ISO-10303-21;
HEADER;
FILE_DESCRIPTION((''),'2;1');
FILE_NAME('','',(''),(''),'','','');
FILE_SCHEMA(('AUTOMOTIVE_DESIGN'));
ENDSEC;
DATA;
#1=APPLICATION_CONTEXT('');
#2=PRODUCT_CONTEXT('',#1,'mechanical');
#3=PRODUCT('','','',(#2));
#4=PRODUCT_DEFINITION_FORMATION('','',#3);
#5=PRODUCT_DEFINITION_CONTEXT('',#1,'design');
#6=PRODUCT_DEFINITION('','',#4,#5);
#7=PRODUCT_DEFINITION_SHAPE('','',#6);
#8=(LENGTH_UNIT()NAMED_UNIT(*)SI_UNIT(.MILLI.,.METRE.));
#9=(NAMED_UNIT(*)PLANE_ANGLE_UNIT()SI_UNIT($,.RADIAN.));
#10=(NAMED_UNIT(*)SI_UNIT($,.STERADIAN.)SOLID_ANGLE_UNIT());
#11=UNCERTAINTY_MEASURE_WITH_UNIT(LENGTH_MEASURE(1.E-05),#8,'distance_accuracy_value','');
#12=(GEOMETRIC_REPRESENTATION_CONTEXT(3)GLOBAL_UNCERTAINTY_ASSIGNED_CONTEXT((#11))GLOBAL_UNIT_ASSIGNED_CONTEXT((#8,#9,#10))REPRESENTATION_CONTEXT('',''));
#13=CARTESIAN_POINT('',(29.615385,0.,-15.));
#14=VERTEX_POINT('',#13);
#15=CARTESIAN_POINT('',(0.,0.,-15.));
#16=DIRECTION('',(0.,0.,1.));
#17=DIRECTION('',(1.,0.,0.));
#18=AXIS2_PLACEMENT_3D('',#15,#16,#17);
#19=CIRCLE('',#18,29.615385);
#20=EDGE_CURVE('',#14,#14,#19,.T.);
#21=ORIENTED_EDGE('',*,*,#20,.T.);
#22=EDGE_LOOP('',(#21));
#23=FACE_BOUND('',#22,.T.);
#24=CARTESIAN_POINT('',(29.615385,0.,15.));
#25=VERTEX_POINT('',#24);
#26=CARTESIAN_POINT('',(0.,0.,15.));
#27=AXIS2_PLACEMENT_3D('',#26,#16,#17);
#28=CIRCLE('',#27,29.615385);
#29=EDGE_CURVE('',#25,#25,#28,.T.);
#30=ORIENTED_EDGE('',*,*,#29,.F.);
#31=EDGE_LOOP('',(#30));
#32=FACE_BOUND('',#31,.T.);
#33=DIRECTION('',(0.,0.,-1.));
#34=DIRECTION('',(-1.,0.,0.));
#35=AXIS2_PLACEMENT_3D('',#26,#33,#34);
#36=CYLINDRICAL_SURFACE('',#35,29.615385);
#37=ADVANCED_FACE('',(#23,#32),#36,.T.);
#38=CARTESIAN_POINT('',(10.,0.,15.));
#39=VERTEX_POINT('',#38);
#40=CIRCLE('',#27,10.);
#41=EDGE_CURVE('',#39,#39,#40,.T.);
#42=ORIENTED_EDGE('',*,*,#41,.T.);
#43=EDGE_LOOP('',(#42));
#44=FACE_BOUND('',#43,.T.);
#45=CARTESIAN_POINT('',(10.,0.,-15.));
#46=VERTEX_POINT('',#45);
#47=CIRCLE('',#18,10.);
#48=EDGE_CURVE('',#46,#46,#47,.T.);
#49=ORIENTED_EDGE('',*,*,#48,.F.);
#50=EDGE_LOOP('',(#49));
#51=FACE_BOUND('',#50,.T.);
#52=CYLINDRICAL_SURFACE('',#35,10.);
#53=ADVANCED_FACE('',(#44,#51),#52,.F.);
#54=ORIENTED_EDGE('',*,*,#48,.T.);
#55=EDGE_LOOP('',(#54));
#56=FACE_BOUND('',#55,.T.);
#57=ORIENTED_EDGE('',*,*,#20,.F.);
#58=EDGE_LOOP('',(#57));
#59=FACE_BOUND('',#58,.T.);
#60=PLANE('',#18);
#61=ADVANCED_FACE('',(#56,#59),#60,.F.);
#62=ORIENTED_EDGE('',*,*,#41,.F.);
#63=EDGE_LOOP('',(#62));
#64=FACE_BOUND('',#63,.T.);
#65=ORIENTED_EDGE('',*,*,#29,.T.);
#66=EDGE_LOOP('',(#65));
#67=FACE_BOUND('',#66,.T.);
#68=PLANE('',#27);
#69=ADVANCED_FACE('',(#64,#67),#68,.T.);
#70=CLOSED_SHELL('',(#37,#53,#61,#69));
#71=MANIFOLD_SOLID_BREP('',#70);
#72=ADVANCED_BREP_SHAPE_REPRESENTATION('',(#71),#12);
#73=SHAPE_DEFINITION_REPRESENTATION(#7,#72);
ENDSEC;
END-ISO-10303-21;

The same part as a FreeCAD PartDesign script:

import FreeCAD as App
import Part
import Sketcher

doc = App.newDocument("Part")
body = doc.addObject("PartDesign::Body", "Body")

sketch1 = body.newObject("Sketcher::SketchObject", "Sketch")
sketch1.AttachmentSupport = (doc.getObject("XY_Plane"), [""])
sketch1.MapMode = "FlatFace"
sketch1.AttachmentOffset = App.Placement(App.Vector(0, 0, -15), App.Rotation())
sketch1.addGeometry([
    Part.Circle(App.Vector(0, 0, 0), App.Vector(0, 0, 1), 30),
    Part.Circle(App.Vector(0, 0, 0), App.Vector(0, 0, 1), 10),
], False)
sketch1.addConstraint([
    Sketcher.Constraint("Coincident", 0, 3, -1, 1),
    Sketcher.Constraint("Coincident", 1, 3, -1, 1),
    Sketcher.Constraint("Diameter", 1, 20.0),
    Sketcher.Constraint("Diameter", 0, 59.230769),
])
pad1 = body.newObject("PartDesign::Pad", "Pad")
pad1.Profile = sketch1
pad1.Length = 30

doc.recompute()
